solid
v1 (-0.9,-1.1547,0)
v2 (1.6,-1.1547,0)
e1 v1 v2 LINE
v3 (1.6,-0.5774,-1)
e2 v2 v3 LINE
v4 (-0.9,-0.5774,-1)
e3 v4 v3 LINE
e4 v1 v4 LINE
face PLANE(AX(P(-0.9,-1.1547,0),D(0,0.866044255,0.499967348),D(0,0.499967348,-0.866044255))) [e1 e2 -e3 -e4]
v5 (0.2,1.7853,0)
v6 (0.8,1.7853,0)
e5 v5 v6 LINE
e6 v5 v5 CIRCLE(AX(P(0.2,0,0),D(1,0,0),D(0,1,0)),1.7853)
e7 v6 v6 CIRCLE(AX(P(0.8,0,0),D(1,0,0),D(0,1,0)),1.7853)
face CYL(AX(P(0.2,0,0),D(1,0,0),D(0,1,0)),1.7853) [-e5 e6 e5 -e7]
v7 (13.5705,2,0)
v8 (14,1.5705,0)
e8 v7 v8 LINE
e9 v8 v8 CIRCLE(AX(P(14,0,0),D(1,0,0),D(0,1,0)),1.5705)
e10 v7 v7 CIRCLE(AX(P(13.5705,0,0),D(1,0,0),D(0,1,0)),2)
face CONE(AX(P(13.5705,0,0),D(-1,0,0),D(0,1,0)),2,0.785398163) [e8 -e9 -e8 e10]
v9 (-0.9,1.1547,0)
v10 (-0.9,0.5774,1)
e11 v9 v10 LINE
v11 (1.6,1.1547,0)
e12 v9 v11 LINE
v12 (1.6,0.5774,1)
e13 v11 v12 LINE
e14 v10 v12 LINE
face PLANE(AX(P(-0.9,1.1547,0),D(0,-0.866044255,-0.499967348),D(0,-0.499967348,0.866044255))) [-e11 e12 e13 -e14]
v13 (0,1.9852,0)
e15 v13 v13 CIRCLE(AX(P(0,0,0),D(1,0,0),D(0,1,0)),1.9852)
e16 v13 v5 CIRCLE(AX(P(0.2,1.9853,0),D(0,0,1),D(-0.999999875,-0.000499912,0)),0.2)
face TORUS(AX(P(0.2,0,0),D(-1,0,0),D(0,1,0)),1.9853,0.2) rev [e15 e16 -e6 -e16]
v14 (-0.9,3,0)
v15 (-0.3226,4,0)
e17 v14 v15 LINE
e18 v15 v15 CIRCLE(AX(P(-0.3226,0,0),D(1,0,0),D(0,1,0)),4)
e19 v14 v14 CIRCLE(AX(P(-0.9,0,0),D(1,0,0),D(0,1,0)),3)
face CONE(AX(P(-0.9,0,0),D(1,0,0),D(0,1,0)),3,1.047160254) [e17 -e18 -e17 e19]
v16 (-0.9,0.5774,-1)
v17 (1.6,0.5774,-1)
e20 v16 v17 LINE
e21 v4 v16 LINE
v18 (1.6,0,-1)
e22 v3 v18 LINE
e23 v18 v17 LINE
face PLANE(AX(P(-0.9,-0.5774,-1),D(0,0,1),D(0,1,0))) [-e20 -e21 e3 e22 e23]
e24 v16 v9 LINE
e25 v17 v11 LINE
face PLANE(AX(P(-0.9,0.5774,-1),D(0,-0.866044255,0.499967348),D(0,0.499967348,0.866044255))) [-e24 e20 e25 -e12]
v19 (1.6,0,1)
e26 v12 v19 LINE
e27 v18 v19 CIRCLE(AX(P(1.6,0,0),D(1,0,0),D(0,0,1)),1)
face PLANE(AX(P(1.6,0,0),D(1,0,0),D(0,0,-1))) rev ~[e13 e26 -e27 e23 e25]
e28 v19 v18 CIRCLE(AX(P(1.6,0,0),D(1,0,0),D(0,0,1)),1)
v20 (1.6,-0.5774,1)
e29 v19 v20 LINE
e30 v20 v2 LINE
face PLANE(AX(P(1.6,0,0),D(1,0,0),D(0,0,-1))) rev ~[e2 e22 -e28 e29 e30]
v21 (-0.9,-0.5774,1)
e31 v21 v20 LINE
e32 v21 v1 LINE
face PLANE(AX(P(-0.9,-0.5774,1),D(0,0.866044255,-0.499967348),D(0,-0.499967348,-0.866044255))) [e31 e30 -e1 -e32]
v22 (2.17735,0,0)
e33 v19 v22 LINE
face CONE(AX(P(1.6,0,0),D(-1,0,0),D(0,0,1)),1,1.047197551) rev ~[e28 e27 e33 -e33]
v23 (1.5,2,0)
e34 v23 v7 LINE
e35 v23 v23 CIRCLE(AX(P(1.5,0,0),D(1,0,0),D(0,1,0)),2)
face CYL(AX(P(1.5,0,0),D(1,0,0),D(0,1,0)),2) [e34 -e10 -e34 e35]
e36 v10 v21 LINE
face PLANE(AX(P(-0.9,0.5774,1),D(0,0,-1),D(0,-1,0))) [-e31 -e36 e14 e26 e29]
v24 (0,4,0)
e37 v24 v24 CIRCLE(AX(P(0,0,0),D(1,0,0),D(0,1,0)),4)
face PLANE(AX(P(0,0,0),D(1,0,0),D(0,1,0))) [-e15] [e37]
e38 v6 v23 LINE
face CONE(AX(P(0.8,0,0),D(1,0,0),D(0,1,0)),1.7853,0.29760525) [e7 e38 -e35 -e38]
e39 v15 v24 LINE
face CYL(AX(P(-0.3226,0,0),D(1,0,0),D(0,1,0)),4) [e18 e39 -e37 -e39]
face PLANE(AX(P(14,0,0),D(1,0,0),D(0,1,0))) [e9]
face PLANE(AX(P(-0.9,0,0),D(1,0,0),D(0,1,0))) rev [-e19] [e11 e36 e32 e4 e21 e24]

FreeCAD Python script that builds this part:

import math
import FreeCAD as App
import Part
import Sketcher
Q = App.Units.Quantity


def add_polygon(sketch, points):
    """Adds a closed chain of lines whose ends are joined by coincident constraints."""
    first, n = sketch.GeometryCount, len(points)
    for a, b in zip(points, points[1:] + points[:1]):
        sketch.addGeometry(Part.LineSegment(App.Vector(*a, 0), App.Vector(*b, 0)), False)
    for i in range(n):
        sketch.addConstraint(Sketcher.Constraint("Coincident", first + i, 2, first + (i + 1) % n, 1))

doc = App.newDocument("Part")
body = doc.addObject("PartDesign::Body", "Body")

sketch1 = doc.addObject("Sketcher::SketchObject", "Sketch")
body.addObject(sketch1)
sketch1.AttachmentSupport = (doc.XY_Plane, [""])
sketch1.MapMode = "FlatFace"
sketch1.addGeometry(Part.LineSegment(App.Vector(-0.9, 0, 0), App.Vector(14, 0, 0)), False)
sketch1.addGeometry(Part.LineSegment(App.Vector(14, 0, 0), App.Vector(14, 1.57, 0)), False)
sketch1.addGeometry(Part.LineSegment(App.Vector(14, 1.57, 0), App.Vector(13.57, 2, 0)), False)
sketch1.addGeometry(Part.LineSegment(App.Vector(13.57, 2, 0), App.Vector(1.5, 2, 0)), False)
sketch1.addGeometry(Part.LineSegment(App.Vector(1.5, 2, 0), App.Vector(0.8, 1.79, 0)), False)
sketch1.addGeometry(Part.LineSegment(App.Vector(0.8, 1.79, 0), App.Vector(0.2, 1.79, 0)), False)
sketch1.addGeometry(Part.ArcOfCircle(Part.Circle(App.Vector(0.2, 1.99, 0), App.Vector(0, 0, 1), 0.2), math.radians(-180), math.radians(-90)), False)
sketch1.addGeometry(Part.LineSegment(App.Vector(0, 1.99, 0), App.Vector(0, 4, 0)), False)
sketch1.addGeometry(Part.LineSegment(App.Vector(0, 4, 0), App.Vector(-0.32, 4, 0)), False)
sketch1.addGeometry(Part.LineSegment(App.Vector(-0.32, 4, 0), App.Vector(-0.9, 3, 0)), False)
sketch1.addGeometry(Part.LineSegment(App.Vector(-0.9, 3, 0), App.Vector(-0.9, 0, 0)), False)
sketch1.addConstraint(Sketcher.Constraint("Coincident", 0, 2, 1, 1))
sketch1.addConstraint(Sketcher.Constraint("Coincident", 1, 2, 2, 1))
sketch1.addConstraint(Sketcher.Constraint("Coincident", 2, 2, 3, 1))
sketch1.addConstraint(Sketcher.Constraint("Coincident", 3, 2, 4, 1))
sketch1.addConstraint(Sketcher.Constraint("Coincident", 4, 2, 5, 1))
sketch1.addConstraint(Sketcher.Constraint("Tangent", 5, 2, 6, 2))
sketch1.addConstraint(Sketcher.Constraint("Tangent", 6, 1, 7, 1))
sketch1.addConstraint(Sketcher.Constraint("Coincident", 7, 2, 8, 1))
sketch1.addConstraint(Sketcher.Constraint("Coincident", 8, 2, 9, 1))
sketch1.addConstraint(Sketcher.Constraint("Coincident", 9, 2, 10, 1))
sketch1.addConstraint(Sketcher.Constraint("Coincident", 10, 2, 0, 1))
sketch1.addConstraint(Sketcher.Constraint("Horizontal", 0))
sketch1.addConstraint(Sketcher.Constraint("Vertical", 1))
sketch1.addConstraint(Sketcher.Constraint("Horizontal", 3))
sketch1.addConstraint(Sketcher.Constraint("Horizontal", 5))
sketch1.addConstraint(Sketcher.Constraint("Vertical", 7))
sketch1.addConstraint(Sketcher.Constraint("Horizontal", 8))
sketch1.addConstraint(Sketcher.Constraint("Vertical", 10))
sketch1.addConstraint(Sketcher.Constraint("PointOnObject", 0, 2, -1))
sketch1.addConstraint(Sketcher.Constraint("PointOnObject", 6, 1, -2))
sketch1.addConstraint(Sketcher.Constraint("Radius", 6, 0.2))
sketch1.addConstraint(Sketcher.Constraint("DistanceY", 10, 2, 10, 1, 3.0))
sketch1.addConstraint(Sketcher.Constraint("Angle", 2, Q("135 deg")))
sketch1.addConstraint(Sketcher.Constraint("DistanceX", 0, 1, 0, 2, 14.9))
sketch1.addConstraint(Sketcher.Constraint("DistanceX", 5, 2, 5, 1, 0.6))
sketch1.addConstraint(Sketcher.Constraint("DistanceX", -1, 1, 0, 2, 14.0))
sketch1.addConstraint(Sketcher.Constraint("DistanceY", -1, 1, 2, 2, 2.0))
sketch1.addConstraint(Sketcher.Constraint("DistanceY", -1, 1, 7, 2, 4.0))
sketch1.addConstraint(Sketcher.Constraint("DistanceX", -1, 1, 3, 2, 1.5))
sketch1.addConstraint(Sketcher.Constraint("DistanceX", 3, 2, 3, 1, 12.0705))
sketch1.addConstraint(Sketcher.Constraint("DistanceX", 8, 2, 8, 1, 0.3226))
sketch1.addConstraint(Sketcher.Constraint("DistanceY", 7, 1, 7, 2, 2.0148))
revolution = doc.addObject("PartDesign::Revolution", "Revolution")
body.addObject(revolution)
revolution.Profile = sketch1
revolution.ReferenceAxis = (sketch1, ["H_Axis"])
revolution.Angle = 360

sketch2 = doc.addObject("Sketcher::SketchObject", "Sketch001")
body.addObject(sketch2)
sketch2.AttachmentSupport = (doc.YZ_Plane, [""])
sketch2.MapMode = "FlatFace"
sketch2.AttachmentOffset = App.Placement(App.Vector(0, 0, -0.9), App.Rotation())
sketch2.addGeometry(Part.Circle(App.Vector(0, 0, 0), App.Vector(0, 0, 1), 1), False)
sketch2.addConstraint(Sketcher.Constraint("Coincident", 0, 3, -1, 1))
sketch2.addConstraint(Sketcher.Constraint("Diameter", 0, 2.0))
doc.recompute()
hole = doc.addObject("PartDesign::Hole", "Hole")
body.addObject(hole)
hole.Profile = sketch2
hole.ThreadType = "None"
hole.Diameter = 2
hole.DepthType = "Dimension"
hole.Depth = 2.5
hole.DrillPoint = "Angled"
hole.DrillPointAngle = 120
hole.Reversed = True

sketch3 = doc.addObject("Sketcher::SketchObject", "Sketch002")
body.addObject(sketch3)
sketch3.AttachmentSupport = (doc.YZ_Plane, [""])
sketch3.MapMode = "FlatFace"
sketch3.AttachmentOffset = App.Placement(App.Vector(0, 0, -0.9), App.Rotation())
add_polygon(sketch3, [(0.6, 1), (-0.6, 1), (-1.2, 0), (-0.6, -1), (0.6, -1), (1.2, 0)])
sketch3.addConstraint(Sketcher.Constraint("Horizontal", 0))
sketch3.addConstraint(Sketcher.Constraint("Horizontal", 3))
sketch3.addConstraint(Sketcher.Constraint("Symmetric", 0, 2, 3, 2, -1, 1))
sketch3.addConstraint(Sketcher.Constraint("Symmetric", 1, 2, 4, 2, -1, 1))
sketch3.addConstraint(Sketcher.Constraint("PointOnObject", 1, 2, -1))
sketch3.addConstraint(Sketcher.Constraint("Parallel", 2, 5))
sketch3.addConstraint(Sketcher.Constraint("Vertical", 0, 2, 2, 2))
sketch3.addConstraint(Sketcher.Constraint("DistanceY", -1, 1, 0, 2, 1.0))
sketch3.addConstraint(Sketcher.Constraint("DistanceX", 0, 2, 0, 1, 1.1548))
sketch3.addConstraint(Sketcher.Constraint("DistanceX", 1, 2, 3, 2, 1.732))
pocket1 = doc.addObject("PartDesign::Pocket", "Pocket")
body.addObject(pocket1)
pocket1.Profile = sketch3
pocket1.Length = 2.5
pocket1.Reversed = True

doc.recompute()
